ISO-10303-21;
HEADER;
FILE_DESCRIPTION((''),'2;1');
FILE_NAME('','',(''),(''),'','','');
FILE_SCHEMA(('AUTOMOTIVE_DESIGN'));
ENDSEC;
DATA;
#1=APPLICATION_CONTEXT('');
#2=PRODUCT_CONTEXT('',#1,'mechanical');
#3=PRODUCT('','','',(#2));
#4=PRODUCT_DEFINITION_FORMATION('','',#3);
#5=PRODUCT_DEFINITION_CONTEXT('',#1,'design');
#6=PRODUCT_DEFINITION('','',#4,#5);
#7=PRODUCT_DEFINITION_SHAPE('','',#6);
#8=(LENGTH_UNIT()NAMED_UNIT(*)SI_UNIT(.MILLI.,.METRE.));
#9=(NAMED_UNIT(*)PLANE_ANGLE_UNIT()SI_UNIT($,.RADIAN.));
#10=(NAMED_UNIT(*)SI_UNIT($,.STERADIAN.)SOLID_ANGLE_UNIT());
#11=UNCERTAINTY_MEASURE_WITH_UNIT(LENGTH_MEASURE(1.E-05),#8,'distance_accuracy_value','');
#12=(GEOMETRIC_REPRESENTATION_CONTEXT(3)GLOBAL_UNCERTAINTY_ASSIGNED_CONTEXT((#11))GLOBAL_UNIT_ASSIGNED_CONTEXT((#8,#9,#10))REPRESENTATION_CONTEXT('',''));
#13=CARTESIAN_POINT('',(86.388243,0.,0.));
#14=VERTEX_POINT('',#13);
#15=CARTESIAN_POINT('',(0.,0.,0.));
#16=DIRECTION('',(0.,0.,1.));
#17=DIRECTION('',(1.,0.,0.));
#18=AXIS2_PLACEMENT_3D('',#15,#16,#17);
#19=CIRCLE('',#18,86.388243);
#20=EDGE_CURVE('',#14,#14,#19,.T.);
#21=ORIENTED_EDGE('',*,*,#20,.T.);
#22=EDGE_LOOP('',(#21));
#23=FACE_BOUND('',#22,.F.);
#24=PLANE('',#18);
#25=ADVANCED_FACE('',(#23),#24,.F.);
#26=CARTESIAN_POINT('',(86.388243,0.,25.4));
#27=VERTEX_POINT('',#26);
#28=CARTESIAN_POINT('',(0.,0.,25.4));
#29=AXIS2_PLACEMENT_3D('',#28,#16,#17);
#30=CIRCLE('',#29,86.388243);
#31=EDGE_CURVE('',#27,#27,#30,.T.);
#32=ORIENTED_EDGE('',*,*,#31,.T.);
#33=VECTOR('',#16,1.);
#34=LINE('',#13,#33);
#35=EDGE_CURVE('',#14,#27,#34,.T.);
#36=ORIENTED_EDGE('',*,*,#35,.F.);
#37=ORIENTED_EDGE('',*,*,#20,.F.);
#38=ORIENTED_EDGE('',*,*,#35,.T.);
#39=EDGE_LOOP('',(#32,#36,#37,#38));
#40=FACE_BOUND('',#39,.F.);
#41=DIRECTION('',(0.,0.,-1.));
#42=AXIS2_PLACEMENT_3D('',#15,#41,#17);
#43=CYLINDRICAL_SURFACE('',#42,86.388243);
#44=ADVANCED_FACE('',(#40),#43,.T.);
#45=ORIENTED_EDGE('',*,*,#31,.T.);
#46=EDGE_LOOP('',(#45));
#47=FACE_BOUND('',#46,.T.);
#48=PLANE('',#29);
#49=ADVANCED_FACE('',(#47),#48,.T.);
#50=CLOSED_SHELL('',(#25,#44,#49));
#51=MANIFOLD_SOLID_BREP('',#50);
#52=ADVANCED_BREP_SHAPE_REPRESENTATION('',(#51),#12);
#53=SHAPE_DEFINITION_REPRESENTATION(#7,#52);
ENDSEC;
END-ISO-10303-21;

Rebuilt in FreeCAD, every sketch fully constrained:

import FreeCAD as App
import Part
import Sketcher
Q = App.Units.Quantity

doc = App.newDocument("Part")
body = doc.addObject("PartDesign::Body", "Body")

# Sketch on XY plane
sketch1 = body.newObject("Sketcher::SketchObject", "Sketch")
sketch1.AttachmentSupport = (doc.getObject("XY_Plane"), [""])
sketch1.MapMode = "FlatFace"
sketch1.addGeometry(Part.Circle(App.Vector(0, 0, 0), App.Vector(0, 0, 1), 86), False)
sketch1.addConstraint(Sketcher.Constraint("Coincident", 0, 3, -1, 1))
sketch1.addConstraint(Sketcher.Constraint("Diameter", 0, 172.776487))
pad1 = body.newObject("PartDesign::Pad", "Pad")
pad1.Profile = sketch1
pad1.Length = Q("1 in")

doc.recompute()
